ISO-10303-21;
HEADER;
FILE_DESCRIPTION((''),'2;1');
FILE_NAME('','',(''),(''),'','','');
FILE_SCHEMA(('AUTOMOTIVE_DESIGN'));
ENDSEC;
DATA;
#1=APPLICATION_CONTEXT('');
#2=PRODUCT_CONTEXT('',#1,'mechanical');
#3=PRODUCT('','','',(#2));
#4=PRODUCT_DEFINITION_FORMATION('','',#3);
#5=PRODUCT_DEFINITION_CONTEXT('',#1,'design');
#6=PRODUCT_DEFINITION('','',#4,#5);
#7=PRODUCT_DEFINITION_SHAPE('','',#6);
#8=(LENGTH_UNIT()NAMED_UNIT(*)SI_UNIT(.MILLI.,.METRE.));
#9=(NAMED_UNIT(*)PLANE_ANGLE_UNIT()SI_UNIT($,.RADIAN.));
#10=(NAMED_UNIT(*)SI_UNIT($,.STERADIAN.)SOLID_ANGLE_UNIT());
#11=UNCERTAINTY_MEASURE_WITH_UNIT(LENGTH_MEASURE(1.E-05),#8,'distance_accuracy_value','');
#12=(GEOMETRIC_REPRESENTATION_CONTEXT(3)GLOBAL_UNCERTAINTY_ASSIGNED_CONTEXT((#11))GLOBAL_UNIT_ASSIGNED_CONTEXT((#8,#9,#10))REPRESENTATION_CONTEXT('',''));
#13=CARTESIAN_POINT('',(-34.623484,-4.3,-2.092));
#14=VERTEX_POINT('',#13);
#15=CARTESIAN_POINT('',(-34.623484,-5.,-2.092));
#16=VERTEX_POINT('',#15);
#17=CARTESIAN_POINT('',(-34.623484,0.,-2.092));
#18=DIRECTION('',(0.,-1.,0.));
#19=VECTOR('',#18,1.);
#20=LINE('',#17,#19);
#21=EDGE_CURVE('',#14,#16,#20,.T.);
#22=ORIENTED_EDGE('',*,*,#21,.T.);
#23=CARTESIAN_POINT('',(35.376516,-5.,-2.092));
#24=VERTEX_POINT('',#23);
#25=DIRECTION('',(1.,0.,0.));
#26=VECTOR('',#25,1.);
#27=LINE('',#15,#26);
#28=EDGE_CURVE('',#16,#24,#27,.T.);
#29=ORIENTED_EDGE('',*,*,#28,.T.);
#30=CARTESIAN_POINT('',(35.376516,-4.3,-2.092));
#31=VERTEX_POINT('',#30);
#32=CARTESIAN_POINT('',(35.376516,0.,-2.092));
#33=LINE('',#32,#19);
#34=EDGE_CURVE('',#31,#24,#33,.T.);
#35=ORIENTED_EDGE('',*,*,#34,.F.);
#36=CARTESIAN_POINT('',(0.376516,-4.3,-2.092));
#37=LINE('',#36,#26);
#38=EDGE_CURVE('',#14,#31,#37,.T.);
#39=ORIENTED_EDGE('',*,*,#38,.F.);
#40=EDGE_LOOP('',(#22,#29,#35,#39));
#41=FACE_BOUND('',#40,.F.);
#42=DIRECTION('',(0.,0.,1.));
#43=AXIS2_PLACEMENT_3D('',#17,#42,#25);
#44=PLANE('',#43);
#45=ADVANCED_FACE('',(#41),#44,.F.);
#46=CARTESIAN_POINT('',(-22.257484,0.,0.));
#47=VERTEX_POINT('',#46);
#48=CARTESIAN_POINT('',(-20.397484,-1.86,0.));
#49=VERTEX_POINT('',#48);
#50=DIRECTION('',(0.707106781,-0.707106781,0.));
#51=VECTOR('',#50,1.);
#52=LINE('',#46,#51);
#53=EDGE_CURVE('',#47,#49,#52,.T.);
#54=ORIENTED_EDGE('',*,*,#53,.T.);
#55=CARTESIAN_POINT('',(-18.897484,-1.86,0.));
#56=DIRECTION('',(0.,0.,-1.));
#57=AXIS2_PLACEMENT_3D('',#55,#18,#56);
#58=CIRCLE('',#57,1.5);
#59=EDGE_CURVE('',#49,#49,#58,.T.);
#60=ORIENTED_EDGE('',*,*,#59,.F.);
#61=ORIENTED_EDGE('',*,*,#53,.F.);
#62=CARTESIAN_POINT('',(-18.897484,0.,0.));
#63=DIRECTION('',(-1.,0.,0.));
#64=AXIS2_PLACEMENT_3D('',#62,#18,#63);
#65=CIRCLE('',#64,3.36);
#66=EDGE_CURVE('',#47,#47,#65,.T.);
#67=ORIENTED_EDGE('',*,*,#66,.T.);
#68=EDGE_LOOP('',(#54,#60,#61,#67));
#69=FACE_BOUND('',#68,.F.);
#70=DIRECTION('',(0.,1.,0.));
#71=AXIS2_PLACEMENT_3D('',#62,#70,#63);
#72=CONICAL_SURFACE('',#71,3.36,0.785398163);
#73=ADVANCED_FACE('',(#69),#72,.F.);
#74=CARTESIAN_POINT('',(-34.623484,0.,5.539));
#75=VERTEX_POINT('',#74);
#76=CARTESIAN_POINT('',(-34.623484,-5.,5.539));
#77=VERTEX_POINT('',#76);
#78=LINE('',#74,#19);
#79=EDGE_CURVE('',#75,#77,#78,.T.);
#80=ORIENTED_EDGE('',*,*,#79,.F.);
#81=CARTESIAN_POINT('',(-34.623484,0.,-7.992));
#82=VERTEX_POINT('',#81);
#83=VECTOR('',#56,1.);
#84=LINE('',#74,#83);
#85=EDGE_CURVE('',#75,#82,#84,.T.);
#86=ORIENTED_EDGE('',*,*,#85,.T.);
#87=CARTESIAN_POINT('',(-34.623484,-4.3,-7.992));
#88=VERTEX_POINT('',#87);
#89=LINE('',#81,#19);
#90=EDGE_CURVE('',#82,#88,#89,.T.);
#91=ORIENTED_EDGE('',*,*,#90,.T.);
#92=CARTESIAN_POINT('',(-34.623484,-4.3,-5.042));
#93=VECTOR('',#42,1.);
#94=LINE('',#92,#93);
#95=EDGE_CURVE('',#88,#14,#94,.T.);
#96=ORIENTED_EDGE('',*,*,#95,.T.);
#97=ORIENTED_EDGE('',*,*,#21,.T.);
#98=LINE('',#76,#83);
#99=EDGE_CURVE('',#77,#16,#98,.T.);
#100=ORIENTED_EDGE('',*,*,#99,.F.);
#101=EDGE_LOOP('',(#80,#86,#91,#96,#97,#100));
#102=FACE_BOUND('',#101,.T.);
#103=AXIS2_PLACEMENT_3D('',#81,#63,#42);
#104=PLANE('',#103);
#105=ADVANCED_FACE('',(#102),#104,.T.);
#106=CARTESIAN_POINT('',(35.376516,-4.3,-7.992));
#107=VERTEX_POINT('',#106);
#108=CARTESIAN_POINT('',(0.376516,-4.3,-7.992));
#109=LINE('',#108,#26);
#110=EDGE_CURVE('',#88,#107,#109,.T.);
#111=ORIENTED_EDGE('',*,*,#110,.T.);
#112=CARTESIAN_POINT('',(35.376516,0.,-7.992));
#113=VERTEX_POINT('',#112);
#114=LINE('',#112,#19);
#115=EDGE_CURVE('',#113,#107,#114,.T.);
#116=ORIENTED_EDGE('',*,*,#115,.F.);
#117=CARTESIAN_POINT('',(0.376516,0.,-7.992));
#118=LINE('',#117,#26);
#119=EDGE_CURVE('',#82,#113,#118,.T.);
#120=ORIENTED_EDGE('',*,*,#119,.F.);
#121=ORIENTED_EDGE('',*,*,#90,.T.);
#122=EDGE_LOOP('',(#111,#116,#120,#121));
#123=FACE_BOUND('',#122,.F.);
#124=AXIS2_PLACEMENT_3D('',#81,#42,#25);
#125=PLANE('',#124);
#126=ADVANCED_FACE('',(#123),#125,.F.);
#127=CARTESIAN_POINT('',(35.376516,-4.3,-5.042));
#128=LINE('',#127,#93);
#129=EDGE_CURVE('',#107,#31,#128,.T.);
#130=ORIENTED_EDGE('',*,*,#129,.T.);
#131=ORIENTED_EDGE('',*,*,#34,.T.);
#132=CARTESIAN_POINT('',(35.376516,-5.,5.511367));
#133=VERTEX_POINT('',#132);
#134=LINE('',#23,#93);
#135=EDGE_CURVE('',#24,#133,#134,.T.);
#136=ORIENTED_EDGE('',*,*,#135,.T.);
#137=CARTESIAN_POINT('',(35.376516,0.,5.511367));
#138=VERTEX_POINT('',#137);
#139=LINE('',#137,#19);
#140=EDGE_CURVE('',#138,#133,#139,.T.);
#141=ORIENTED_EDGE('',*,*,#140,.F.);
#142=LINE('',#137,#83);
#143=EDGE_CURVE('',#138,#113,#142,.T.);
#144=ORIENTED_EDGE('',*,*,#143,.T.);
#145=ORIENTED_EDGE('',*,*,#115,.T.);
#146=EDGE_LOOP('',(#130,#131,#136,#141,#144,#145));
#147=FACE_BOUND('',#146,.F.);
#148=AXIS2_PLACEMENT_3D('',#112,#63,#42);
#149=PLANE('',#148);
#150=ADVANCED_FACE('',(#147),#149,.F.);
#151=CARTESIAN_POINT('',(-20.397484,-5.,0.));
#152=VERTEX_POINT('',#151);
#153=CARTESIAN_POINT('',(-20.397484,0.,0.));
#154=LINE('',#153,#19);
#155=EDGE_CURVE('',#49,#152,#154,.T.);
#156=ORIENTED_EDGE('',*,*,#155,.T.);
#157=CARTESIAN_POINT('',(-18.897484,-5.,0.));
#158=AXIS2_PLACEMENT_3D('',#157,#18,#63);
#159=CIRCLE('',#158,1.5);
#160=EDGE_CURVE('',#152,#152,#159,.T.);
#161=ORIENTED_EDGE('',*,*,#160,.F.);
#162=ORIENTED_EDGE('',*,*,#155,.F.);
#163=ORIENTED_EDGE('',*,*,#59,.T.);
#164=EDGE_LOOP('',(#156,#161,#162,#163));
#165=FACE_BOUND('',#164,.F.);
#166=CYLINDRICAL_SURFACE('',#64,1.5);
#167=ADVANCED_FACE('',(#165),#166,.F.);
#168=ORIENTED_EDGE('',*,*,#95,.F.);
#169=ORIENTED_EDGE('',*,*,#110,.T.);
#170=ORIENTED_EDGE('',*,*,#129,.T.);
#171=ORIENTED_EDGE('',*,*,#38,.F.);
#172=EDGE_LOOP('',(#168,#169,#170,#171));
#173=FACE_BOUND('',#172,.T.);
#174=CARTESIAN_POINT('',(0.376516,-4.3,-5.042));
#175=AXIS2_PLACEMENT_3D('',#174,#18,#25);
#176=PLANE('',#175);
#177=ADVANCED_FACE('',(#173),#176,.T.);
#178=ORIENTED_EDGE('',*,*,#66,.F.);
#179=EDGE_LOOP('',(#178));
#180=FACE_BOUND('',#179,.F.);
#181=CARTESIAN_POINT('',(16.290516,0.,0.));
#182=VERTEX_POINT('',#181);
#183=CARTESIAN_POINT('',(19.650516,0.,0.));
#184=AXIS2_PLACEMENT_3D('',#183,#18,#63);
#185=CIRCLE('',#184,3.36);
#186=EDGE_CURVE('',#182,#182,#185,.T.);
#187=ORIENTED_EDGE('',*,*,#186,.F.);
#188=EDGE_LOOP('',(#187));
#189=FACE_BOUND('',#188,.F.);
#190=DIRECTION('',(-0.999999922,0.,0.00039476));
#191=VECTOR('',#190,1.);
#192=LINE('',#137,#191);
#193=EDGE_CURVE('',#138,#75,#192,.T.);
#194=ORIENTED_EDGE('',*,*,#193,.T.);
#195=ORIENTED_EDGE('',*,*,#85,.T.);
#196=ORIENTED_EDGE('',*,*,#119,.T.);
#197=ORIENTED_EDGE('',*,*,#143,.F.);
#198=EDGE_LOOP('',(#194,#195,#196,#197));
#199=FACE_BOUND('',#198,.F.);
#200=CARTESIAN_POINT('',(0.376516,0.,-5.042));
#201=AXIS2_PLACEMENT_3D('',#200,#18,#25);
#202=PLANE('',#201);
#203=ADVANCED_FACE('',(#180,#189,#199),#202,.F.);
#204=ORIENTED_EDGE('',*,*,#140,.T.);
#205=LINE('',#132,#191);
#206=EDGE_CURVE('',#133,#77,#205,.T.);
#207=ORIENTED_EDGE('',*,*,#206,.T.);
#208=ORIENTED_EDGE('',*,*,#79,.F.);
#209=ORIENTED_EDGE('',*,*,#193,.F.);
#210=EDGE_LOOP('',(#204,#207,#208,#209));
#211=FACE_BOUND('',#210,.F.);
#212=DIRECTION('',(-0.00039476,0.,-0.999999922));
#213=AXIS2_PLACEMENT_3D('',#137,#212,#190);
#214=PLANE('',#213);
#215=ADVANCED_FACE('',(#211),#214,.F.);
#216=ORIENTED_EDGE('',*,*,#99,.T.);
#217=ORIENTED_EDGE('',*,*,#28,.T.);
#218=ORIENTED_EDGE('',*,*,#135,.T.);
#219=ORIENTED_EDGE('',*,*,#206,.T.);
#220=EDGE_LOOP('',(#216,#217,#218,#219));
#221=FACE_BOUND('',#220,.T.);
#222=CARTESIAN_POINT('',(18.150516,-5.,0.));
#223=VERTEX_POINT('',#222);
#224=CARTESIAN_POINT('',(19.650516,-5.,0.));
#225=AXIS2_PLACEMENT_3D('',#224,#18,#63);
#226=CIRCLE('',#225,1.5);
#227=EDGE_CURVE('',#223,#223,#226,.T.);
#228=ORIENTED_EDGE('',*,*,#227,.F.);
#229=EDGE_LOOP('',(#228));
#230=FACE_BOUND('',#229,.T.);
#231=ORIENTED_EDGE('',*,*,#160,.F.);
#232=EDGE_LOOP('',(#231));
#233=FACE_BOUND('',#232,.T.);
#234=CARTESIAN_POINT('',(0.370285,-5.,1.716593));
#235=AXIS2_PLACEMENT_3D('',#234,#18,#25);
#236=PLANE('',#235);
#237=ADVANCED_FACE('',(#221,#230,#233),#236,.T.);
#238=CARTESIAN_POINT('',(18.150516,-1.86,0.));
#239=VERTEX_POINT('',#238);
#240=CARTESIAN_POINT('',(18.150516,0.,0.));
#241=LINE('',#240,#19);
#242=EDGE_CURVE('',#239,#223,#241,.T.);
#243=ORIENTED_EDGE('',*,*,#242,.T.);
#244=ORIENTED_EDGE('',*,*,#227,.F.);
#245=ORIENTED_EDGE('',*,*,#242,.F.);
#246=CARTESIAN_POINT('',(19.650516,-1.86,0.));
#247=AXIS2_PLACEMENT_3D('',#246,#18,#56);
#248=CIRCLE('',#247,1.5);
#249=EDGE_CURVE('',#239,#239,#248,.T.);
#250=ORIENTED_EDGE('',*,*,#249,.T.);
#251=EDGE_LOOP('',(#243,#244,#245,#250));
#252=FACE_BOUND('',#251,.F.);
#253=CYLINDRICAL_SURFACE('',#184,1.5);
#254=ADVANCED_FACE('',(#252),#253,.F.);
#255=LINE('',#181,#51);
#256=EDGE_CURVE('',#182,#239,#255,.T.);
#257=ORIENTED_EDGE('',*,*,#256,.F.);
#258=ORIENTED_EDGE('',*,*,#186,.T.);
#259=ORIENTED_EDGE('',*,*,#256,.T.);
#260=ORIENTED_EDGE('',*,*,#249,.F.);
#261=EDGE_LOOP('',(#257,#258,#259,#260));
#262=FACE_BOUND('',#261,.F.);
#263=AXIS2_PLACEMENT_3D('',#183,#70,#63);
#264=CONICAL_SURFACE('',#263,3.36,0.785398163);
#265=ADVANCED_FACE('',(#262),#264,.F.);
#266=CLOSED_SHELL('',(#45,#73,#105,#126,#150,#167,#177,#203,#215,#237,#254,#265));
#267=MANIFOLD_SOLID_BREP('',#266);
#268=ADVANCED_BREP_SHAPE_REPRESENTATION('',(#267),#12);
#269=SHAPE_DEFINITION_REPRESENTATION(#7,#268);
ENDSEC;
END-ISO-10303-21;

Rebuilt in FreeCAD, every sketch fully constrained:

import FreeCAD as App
import Part
import Sketcher
from FreeCAD import Vector
Q = App.Units.Quantity


def add_polygon(sketch, points):
    """Adds a closed chain of lines whose ends are joined by coincident constraints."""
    first, n = sketch.GeometryCount, len(points)
    for a, b in zip(points, points[1:] + points[:1]):
        sketch.addGeometry(Part.LineSegment(App.Vector(*a, 0), App.Vector(*b, 0)), False)
    for i in range(n):
        sketch.addConstraint(Sketcher.Constraint("Coincident", first + i, 2, first + (i + 1) % n, 1))

doc = App.newDocument("Part")
body = doc.addObject("PartDesign::Body", "Body")

sketch1 = body.newObject("Sketcher::SketchObject", "Sketch")
sketch1.AttachmentSupport = (doc.getObject("XZ_Plane"), [""])
sketch1.MapMode = "FlatFace"
add_polygon(sketch1, [(-35, 6), (-35, -2), (35, -2), (35, 6)])
sketch1.addConstraint(Sketcher.Constraint("Vertical", 0))
sketch1.addConstraint(Sketcher.Constraint("Horizontal", 1))
sketch1.addConstraint(Sketcher.Constraint("Vertical", 2))
sketch1.addConstraint(Sketcher.Constraint("DistanceX", 1, 1, 1, 2, Q("70 mm")))
sketch1.addConstraint(Sketcher.Constraint("DistanceY", 0, 2, 0, 1, Q("7.631 mm")))
sketch1.addConstraint(Sketcher.Constraint("DistanceY", 0, 2, -1, 1, Q("2.092 mm")))
sketch1.addConstraint(Sketcher.Constraint("DistanceY", 2, 1, 2, 2, Q("7.603367 mm")))
sketch1.addConstraint(Sketcher.Constraint("DistanceX", 0, 2, -1, 1, Q("34.623484 mm")))
pad1 = body.newObject("PartDesign::Pad", "Pad")
pad1.Profile = sketch1
pad1.Length = 5

sketch2 = body.newObject("Sketcher::SketchObject", "Sketch001")
sketch2.AttachmentSupport = (doc.getObject("XZ_Plane"), [""])
sketch2.MapMode = "FlatFace"
add_polygon(sketch2, [(-35, -2), (-35, -8), (35, -8), (35, -2)])
sketch2.addConstraint(Sketcher.Constraint("Vertical", 0))
sketch2.addConstraint(Sketcher.Constraint("Horizontal", 1))
sketch2.addConstraint(Sketcher.Constraint("Vertical", 2))
sketch2.addConstraint(Sketcher.Constraint("Horizontal", 3))
sketch2.addConstraint(Sketcher.Constraint("DistanceX", 1, 1, 1, 2, Q("70 mm")))
sketch2.addConstraint(Sketcher.Constraint("DistanceY", 0, 2, 0, 1, Q("5.9 mm")))
sketch2.addConstraint(Sketcher.Constraint("DistanceY", 0, 2, -1, 1, Q("7.992 mm")))
sketch2.addConstraint(Sketcher.Constraint("DistanceX", 0, 2, -1, 1, Q("34.623484 mm")))
pad2 = body.newObject("PartDesign::Pad", "Pad001")
pad2.Profile = sketch2
pad2.Length = 4.3

sketch3 = body.newObject("Sketcher::SketchObject", "Sketch002")
sketch3.AttachmentSupport = (doc.getObject("XZ_Plane"), [""])
sketch3.MapMode = "FlatFace"
sketch3.addGeometry(Part.Circle(Vector(19.7, 0, 0), Vector(0, 0, 1), 1.5), False)
sketch3.addGeometry(Part.Circle(Vector(-18.9, 0, 0), Vector(0, 0, 1), 1.5), False)
sketch3.addConstraint(Sketcher.Constraint("Equal", 0, 1))
sketch3.addConstraint(Sketcher.Constraint("PointOnObject", 0, 3, -1))
sketch3.addConstraint(Sketcher.Constraint("PointOnObject", 1, 3, -1))
sketch3.addConstraint(Sketcher.Constraint("Diameter", 0, Q("3 mm")))
sketch3.addConstraint(Sketcher.Constraint("DistanceX", 1, 3, 0, 3, Q("38.548 mm")))
sketch3.addConstraint(Sketcher.Constraint("DistanceX", -1, 1, 0, 3, Q("19.650516 mm")))
doc.recompute()
hole = body.newObject("PartDesign::Hole", "Hole")
hole.Profile = sketch3
hole.ThreadType = "None"
hole.Diameter = 3
hole.DepthType = "ThroughAll"
hole.HoleCutType = "Countersink"
hole.HoleCutDiameter = 6.72
hole.HoleCutCountersinkAngle = 90
hole.Reversed = True

doc.recompute()
